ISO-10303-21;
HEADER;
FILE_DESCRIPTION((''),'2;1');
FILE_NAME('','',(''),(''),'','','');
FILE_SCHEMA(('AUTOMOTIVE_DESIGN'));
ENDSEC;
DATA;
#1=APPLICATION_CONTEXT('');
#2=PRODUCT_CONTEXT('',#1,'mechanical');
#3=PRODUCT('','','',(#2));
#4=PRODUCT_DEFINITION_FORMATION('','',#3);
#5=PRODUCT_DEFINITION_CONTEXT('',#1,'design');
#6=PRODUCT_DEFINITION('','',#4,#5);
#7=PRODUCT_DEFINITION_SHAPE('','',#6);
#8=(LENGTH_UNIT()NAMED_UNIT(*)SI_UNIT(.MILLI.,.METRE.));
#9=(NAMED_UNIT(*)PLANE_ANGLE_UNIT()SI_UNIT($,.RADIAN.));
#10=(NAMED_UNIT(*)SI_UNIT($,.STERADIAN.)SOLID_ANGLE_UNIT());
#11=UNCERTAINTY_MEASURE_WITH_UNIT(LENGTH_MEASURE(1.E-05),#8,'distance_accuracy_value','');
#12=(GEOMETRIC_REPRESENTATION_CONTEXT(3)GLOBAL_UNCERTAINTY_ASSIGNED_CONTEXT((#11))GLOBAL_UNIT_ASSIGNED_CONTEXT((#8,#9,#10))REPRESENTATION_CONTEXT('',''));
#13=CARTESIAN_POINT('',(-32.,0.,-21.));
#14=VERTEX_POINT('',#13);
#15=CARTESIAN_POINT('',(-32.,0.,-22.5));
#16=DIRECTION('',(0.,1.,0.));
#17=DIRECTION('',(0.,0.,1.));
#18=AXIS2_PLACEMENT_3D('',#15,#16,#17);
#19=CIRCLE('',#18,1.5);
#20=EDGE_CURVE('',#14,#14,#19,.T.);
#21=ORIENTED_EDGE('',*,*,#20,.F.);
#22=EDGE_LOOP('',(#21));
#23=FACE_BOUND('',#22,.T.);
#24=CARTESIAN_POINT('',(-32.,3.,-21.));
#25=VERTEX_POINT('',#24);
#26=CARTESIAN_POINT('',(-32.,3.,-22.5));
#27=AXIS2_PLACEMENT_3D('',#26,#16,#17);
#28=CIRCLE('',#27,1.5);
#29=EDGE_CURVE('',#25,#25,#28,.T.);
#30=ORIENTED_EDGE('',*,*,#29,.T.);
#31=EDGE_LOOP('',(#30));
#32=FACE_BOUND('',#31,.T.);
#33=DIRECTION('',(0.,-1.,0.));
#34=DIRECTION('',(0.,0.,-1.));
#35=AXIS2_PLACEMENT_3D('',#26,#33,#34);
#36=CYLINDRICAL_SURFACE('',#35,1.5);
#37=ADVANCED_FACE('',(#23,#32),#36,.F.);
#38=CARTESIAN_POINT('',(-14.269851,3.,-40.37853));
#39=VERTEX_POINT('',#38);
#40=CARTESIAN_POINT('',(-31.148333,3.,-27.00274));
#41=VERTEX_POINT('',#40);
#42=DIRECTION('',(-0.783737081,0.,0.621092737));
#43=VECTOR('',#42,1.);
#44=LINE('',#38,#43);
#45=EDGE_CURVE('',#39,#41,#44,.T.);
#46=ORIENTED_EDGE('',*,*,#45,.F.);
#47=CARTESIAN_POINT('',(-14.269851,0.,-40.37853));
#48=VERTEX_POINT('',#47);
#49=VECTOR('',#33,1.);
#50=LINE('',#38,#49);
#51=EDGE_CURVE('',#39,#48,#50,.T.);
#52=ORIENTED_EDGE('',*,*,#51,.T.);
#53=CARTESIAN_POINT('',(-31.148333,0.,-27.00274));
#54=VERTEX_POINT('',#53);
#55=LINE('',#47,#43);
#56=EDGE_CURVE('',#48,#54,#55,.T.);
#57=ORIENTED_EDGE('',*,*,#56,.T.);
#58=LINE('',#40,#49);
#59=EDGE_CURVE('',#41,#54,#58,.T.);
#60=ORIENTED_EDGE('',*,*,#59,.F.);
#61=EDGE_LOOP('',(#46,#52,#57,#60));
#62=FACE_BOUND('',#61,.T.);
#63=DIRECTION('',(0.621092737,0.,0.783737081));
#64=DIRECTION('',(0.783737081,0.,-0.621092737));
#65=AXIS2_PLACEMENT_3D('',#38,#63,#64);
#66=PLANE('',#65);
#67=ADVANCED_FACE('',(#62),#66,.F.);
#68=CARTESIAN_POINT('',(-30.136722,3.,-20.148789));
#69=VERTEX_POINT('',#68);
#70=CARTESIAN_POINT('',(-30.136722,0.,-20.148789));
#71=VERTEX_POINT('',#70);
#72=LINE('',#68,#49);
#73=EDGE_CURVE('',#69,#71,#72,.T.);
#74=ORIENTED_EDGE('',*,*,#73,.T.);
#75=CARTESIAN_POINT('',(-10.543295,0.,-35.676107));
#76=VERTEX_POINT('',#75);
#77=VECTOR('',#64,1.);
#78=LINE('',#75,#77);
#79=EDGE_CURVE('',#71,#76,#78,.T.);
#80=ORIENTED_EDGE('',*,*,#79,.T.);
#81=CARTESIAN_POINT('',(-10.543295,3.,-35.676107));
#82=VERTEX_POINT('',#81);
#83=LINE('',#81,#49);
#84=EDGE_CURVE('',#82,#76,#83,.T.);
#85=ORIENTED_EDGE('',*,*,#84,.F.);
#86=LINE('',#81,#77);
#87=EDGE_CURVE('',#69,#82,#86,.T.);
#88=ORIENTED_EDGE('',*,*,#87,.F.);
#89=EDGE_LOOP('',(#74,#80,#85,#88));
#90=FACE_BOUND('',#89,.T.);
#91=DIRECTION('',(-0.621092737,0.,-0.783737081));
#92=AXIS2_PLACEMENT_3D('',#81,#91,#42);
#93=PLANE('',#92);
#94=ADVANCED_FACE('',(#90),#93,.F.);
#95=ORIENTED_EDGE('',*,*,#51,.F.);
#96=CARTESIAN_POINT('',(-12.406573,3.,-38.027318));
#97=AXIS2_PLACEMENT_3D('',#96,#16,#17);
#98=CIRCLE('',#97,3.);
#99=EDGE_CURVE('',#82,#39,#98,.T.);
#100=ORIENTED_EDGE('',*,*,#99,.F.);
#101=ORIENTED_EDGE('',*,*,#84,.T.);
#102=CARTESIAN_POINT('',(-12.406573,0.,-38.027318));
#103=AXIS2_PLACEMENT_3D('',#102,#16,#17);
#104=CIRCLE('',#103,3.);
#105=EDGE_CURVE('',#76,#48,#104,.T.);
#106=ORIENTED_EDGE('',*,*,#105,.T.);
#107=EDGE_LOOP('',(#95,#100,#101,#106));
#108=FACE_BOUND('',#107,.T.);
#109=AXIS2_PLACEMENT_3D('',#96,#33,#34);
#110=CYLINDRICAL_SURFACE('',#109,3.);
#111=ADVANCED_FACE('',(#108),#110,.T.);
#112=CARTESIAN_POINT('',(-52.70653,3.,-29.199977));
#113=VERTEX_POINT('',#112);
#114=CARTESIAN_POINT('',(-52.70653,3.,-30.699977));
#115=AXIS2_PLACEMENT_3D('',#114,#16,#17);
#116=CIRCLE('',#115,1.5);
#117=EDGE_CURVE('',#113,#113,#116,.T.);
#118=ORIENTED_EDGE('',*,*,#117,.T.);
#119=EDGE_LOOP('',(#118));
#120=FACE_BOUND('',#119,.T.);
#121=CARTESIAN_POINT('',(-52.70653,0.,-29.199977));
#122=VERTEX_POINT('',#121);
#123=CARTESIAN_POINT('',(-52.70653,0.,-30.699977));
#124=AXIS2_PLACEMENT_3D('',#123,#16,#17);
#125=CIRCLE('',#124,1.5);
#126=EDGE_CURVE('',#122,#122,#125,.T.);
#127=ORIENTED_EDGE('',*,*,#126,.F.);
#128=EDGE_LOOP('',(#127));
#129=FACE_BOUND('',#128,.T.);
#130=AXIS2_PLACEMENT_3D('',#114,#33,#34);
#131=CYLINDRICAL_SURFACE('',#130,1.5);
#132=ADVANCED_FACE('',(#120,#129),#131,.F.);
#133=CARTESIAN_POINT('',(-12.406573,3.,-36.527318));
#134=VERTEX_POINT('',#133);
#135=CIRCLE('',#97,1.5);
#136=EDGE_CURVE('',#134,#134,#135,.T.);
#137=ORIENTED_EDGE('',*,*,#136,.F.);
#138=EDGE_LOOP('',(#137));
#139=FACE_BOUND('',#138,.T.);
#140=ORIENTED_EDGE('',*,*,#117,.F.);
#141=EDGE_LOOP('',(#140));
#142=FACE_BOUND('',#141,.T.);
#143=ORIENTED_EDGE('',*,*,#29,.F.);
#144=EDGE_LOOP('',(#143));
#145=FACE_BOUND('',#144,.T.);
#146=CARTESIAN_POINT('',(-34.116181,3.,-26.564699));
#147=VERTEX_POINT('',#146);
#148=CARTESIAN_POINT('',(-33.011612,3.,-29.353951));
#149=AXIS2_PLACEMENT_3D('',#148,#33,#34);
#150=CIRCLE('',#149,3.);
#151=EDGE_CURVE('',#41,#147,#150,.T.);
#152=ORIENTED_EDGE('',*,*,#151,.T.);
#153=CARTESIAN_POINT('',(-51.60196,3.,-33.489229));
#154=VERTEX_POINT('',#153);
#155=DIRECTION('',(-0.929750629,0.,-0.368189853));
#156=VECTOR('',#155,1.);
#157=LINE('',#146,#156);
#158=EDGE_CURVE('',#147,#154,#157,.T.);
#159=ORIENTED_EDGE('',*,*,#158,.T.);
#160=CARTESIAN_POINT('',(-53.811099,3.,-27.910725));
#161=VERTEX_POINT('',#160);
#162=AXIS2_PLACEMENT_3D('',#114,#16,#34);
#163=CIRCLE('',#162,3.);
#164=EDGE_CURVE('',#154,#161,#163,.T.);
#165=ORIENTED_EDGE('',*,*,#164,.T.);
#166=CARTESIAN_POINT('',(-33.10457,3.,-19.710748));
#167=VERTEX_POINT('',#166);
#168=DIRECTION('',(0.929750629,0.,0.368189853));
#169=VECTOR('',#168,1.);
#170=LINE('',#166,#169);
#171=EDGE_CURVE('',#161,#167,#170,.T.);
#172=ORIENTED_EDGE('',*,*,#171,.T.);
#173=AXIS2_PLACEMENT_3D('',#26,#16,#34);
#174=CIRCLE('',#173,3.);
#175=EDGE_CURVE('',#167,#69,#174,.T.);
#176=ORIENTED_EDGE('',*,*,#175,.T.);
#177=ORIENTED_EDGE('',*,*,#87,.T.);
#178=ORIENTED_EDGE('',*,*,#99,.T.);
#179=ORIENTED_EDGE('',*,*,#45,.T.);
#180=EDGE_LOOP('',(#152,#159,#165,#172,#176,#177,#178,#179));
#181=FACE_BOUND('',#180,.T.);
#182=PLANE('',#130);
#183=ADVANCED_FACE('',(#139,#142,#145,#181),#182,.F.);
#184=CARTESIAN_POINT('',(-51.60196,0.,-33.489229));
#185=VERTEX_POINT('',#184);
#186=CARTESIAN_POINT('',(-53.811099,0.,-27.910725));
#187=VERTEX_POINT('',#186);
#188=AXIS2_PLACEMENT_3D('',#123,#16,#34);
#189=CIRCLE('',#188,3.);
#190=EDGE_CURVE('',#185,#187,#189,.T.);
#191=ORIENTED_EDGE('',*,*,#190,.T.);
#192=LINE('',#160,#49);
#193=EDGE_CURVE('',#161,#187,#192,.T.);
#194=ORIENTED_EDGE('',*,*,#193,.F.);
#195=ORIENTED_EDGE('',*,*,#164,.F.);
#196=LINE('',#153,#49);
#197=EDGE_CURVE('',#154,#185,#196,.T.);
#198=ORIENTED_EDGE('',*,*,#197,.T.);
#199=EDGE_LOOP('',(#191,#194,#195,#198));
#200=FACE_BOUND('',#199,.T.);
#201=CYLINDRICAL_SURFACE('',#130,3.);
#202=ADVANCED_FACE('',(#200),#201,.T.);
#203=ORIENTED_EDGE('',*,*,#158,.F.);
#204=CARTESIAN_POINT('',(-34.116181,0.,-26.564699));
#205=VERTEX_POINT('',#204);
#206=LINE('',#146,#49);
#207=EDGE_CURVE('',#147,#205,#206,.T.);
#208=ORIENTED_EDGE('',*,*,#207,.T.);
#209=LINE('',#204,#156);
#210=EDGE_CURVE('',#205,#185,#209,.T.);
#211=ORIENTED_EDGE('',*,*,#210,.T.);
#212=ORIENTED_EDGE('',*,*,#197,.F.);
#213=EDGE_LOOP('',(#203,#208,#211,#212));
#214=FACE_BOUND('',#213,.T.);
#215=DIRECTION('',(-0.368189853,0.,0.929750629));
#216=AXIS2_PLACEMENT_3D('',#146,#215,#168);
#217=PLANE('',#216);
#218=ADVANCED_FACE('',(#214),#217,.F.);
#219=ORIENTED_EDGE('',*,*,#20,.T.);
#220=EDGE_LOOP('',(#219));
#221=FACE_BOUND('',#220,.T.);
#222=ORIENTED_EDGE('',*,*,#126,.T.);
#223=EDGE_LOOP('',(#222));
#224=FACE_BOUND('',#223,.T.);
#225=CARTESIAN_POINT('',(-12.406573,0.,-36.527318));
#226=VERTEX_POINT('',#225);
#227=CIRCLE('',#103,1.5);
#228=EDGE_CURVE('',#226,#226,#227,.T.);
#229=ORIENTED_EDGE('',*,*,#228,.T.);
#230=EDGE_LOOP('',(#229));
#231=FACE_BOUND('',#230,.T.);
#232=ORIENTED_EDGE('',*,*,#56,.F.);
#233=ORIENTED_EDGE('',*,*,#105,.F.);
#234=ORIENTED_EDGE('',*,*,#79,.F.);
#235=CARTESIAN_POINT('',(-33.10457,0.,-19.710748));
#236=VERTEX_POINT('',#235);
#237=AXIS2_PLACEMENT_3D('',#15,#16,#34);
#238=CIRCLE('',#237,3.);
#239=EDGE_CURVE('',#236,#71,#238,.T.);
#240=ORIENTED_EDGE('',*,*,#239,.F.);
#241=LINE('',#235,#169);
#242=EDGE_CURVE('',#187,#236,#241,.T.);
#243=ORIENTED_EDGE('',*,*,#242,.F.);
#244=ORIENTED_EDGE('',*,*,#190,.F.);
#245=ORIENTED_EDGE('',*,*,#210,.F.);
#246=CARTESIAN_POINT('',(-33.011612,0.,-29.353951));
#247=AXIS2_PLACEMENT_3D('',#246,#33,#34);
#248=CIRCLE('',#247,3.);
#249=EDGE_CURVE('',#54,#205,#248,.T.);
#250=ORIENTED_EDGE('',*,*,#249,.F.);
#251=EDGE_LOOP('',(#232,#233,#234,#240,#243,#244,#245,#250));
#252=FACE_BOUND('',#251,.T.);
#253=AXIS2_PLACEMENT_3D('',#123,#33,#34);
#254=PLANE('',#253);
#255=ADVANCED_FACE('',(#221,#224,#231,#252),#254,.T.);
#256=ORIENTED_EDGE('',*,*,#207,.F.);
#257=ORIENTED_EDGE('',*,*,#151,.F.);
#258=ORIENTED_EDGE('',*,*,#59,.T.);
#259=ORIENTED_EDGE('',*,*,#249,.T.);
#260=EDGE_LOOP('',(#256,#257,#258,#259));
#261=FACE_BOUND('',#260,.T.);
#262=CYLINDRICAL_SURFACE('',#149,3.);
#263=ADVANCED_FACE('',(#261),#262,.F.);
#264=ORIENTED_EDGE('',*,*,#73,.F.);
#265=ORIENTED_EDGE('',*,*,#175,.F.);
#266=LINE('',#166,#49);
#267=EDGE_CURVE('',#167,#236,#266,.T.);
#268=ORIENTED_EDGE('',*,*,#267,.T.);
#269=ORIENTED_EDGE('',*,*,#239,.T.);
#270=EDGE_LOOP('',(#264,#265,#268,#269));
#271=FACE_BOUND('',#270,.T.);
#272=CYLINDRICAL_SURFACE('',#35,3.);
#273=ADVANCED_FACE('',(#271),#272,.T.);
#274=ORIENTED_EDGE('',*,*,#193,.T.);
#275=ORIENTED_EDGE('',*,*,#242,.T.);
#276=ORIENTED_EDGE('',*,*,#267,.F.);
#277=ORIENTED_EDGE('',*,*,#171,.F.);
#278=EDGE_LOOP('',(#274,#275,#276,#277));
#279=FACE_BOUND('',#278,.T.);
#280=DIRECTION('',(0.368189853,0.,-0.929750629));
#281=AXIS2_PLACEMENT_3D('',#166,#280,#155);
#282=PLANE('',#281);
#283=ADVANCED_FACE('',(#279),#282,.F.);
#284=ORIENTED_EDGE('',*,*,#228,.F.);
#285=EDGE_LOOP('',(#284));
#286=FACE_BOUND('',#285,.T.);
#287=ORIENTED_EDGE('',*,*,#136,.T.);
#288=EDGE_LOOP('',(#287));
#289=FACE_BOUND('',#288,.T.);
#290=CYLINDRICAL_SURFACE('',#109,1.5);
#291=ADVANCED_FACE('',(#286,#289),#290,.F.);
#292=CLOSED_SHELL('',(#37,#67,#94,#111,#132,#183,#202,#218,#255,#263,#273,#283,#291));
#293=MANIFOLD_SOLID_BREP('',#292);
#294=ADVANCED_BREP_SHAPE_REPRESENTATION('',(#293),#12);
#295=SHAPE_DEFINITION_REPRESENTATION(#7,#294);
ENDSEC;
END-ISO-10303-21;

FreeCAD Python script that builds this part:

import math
import FreeCAD as App
import Part
import Sketcher
from FreeCAD import Vector

doc = App.newDocument("Part")
params = doc.addObject("Spreadsheet::Sheet", "Params")
for row, (alias, value) in enumerate([
    ("sketch1_diameter", "3 mm"),
    ("sketch1_radius", "3 mm"),
    ("sketch1_length", "25 mm"),
    ("pad1_length", "3 mm"),
], start=1):
    params.set(f"A{row}", alias)
    params.set(f"B{row}", "=" + value)
    params.setAlias(f"B{row}", alias)

body = doc.addObject("PartDesign::Body", "Body")

# Sketch on XZ plane
sketch1 = body.newObject("Sketcher::SketchObject", "Sketch")
sketch1.AttachmentSupport = (doc.getObject("XZ_Plane"), [""])
sketch1.MapMode = "FlatFace"
sketch1.addGeometry(Part.LineSegment(Vector(-14.3, -40.4, 0), Vector(-31.1, -27, 0)), False)
sketch1.addGeometry(Part.ArcOfCircle(Part.Circle(Vector(-33, -29.4, 0), Vector(0, 0, 1), 3), math.radians(52), math.radians(112)), False)
sketch1.addGeometry(Part.LineSegment(Vector(-34.1, -26.6, 0), Vector(-51.6, -33.5, 0)), False)
sketch1.addGeometry(Part.ArcOfCircle(Part.Circle(Vector(-52.7, -30.7, 0), Vector(0, 0, 1), 3), math.radians(112), math.radians(292)), False)
sketch1.addGeometry(Part.LineSegment(Vector(-53.8, -27.9, 0), Vector(-33.1, -19.7, 0)), False)
sketch1.addGeometry(Part.ArcOfCircle(Part.Circle(Vector(-32, -22.5, 0), Vector(0, 0, 1), 3), math.radians(52), math.radians(112)), False)
sketch1.addGeometry(Part.LineSegment(Vector(-30.1, -20.1, 0), Vector(-10.5, -35.7, 0)), False)
sketch1.addGeometry(Part.ArcOfCircle(Part.Circle(Vector(-12.4, -38, 0), Vector(0, 0, 1), 3), math.radians(-128), math.radians(52)), False)
sketch1.addGeometry(Part.Circle(Vector(-32, -22.5, 0), Vector(0, 0, 1), 1.5), False)
sketch1.addGeometry(Part.Circle(Vector(-52.7, -30.7, 0), Vector(0, 0, 1), 1.5), False)
sketch1.addGeometry(Part.Circle(Vector(-12.4, -38, 0), Vector(0, 0, 1), 1.5), False)
sketch1.addConstraint(Sketcher.Constraint("Tangent", 0, 2, 1, 1))
sketch1.addConstraint(Sketcher.Constraint("Tangent", 1, 2, 2, 1))
sketch1.addConstraint(Sketcher.Constraint("Tangent", 2, 2, 3, 2))
sketch1.addConstraint(Sketcher.Constraint("Tangent", 3, 1, 4, 1))
sketch1.addConstraint(Sketcher.Constraint("Tangent", 4, 2, 5, 2))
sketch1.addConstraint(Sketcher.Constraint("Tangent", 5, 1, 6, 1))
sketch1.addConstraint(Sketcher.Constraint("Tangent", 6, 2, 7, 2))
sketch1.addConstraint(Sketcher.Constraint("Tangent", 7, 1, 0, 1))
sketch1.addConstraint(Sketcher.Constraint("Coincident", 8, 3, 5, 3))
sketch1.addConstraint(Sketcher.Constraint("Coincident", 9, 3, 3, 3))
sketch1.addConstraint(Sketcher.Constraint("Coincident", 10, 3, 7, 3))
sketch1.addConstraint(Sketcher.Constraint("Equal", 1, 3))
sketch1.addConstraint(Sketcher.Constraint("Equal", 3, 5))
sketch1.addConstraint(Sketcher.Constraint("Equal", 5, 7))
sketch1.addConstraint(Sketcher.Constraint("Equal", 8, 9))
sketch1.addConstraint(Sketcher.Constraint("Equal", 9, 10))
sketch1.addConstraint(Sketcher.Constraint("Parallel", 2, 4))
sketch1.addConstraint(Sketcher.Constraint("Parallel", 0, 6))
sketch1.addConstraint(Sketcher.Constraint("Diameter", 8, 3.0))
sketch1.addConstraint(Sketcher.Constraint("Radius", 1, 3.0))
sketch1.addConstraint(Sketcher.Constraint("Distance", 6, 25.0))
sketch1.addConstraint(Sketcher.Constraint("DistanceX", 5, 3, -1, 1, 32.0))
sketch1.addConstraint(Sketcher.Constraint("DistanceY", 5, 3, -1, 1, 22.5))
sketch1.addConstraint(Sketcher.Constraint("Distance", 0, 21.535898))
sketch1.addConstraint(Sketcher.Constraint("DistanceY", 1, 2, -1, 1, 26.564699))
sketch1.addConstraint(Sketcher.Constraint("DistanceX", 3, 1, -1, 1, 53.811099))
sketch1.setExpression("Constraints[18]", "Params.sketch1_diameter")
sketch1.setExpression("Constraints[19]", "Params.sketch1_radius")
sketch1.setExpression("Constraints[20]", "Params.sketch1_length")
pad1 = body.newObject("PartDesign::Pad", "Pad")
pad1.Profile = sketch1
pad1.setExpression("Length", "Params.pad1_length")
pad1.Reversed = True

doc.recompute()
